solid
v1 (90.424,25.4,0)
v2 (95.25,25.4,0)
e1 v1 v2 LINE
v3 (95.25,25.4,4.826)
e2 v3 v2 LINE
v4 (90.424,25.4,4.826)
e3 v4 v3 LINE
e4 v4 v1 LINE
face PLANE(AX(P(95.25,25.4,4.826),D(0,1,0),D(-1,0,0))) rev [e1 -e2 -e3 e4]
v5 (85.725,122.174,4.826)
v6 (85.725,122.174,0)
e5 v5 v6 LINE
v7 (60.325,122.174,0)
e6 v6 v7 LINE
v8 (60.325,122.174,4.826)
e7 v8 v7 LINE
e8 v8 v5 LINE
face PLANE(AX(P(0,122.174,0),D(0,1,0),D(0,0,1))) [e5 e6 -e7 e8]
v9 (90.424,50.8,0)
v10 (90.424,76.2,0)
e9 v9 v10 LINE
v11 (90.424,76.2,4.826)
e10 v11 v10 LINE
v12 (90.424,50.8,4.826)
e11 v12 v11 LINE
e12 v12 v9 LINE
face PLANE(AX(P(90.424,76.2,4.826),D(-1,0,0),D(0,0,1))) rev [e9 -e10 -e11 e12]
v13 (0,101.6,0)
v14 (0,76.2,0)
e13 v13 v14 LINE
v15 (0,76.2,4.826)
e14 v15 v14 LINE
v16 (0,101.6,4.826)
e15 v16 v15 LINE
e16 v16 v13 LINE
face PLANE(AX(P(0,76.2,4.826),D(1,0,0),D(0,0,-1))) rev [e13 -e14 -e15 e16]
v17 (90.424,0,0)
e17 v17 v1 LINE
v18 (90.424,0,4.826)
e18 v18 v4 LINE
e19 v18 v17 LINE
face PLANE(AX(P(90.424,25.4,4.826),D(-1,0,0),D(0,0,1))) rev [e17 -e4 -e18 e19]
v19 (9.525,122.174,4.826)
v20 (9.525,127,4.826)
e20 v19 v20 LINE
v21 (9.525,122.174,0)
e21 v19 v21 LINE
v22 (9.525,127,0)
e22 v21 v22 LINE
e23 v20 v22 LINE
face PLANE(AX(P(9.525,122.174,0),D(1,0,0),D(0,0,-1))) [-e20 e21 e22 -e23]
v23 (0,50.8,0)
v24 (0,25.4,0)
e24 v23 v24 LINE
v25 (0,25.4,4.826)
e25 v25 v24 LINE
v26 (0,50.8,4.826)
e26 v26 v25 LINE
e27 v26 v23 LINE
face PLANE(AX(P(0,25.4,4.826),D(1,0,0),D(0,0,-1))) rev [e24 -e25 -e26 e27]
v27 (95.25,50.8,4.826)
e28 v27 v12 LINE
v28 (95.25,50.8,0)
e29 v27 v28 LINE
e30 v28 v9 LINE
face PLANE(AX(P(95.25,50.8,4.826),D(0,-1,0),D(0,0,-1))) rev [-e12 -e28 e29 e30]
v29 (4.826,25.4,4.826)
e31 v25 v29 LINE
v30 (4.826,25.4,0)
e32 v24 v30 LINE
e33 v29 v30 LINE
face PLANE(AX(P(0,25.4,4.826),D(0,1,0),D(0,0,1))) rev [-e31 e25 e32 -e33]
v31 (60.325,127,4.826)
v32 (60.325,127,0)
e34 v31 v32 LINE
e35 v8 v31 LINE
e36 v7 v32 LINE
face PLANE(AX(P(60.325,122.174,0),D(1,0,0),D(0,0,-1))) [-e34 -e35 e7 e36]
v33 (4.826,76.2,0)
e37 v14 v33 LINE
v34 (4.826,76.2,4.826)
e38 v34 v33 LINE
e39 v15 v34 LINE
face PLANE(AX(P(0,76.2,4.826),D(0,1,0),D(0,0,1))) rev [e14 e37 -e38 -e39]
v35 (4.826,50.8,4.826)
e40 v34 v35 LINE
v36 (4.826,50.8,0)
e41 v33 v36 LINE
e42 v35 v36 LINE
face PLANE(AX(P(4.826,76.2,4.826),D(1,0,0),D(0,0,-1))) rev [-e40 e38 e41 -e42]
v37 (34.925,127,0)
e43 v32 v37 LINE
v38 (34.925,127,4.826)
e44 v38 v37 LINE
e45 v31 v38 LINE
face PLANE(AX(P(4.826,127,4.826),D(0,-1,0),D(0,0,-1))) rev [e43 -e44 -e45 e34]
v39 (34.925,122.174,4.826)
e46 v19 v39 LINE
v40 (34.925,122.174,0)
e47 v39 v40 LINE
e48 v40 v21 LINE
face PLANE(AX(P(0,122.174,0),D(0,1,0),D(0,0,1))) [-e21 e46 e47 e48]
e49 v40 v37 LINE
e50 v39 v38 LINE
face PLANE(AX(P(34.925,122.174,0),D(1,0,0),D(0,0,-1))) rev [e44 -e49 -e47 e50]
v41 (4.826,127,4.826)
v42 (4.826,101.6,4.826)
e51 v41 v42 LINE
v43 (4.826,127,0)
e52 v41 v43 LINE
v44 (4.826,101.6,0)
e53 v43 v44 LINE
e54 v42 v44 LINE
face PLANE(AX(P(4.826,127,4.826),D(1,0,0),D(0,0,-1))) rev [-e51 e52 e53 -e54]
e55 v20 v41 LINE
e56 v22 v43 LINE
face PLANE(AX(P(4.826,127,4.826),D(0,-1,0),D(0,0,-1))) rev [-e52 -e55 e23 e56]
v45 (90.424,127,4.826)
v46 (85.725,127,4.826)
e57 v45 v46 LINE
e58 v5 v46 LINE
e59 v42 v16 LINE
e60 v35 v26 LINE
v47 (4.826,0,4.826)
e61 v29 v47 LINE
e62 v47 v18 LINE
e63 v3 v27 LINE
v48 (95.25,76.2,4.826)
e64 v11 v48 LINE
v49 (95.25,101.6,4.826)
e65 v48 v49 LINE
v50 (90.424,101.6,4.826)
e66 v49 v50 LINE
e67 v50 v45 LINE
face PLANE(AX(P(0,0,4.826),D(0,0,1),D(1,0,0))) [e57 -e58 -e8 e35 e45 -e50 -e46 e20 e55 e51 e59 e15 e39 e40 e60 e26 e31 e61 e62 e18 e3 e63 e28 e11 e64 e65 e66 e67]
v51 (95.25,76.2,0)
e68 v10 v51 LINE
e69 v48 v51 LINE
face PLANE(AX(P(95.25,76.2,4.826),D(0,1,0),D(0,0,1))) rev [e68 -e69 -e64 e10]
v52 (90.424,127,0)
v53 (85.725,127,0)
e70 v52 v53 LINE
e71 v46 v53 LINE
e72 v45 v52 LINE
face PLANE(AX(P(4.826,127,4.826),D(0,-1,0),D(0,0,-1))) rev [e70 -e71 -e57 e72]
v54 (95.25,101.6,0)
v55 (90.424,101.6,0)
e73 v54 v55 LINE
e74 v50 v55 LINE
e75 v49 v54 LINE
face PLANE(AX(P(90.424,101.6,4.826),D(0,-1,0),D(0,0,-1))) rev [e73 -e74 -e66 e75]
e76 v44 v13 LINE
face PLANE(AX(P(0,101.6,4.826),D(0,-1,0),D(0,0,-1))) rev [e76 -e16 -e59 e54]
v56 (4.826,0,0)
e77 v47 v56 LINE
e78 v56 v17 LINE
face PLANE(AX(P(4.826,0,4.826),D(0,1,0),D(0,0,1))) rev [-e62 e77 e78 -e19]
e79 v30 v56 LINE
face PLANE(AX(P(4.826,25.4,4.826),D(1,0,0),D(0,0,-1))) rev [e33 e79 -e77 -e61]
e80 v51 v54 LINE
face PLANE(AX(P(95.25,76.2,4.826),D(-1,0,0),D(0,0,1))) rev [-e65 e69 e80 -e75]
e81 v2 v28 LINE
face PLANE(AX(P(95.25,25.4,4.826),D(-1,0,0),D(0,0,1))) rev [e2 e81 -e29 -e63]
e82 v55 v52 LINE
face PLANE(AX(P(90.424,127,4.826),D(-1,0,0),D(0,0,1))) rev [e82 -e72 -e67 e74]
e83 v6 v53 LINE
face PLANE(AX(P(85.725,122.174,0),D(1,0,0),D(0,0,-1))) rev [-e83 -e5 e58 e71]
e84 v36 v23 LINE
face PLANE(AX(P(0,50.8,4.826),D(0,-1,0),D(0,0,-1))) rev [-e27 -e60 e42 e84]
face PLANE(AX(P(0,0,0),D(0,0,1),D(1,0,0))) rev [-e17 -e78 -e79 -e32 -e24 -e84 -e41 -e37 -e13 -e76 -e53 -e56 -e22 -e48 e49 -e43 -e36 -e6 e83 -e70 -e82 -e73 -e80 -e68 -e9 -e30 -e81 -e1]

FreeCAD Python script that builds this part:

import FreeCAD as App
import Part
import Sketcher

V = App.Vector
Q = App.Units.Quantity


def add_polygon(sketch, points):
    """Adds a closed chain of lines whose ends are joined by coincident constraints."""
    first, n = sketch.GeometryCount, len(points)
    for a, b in zip(points, points[1:] + points[:1]):
        sketch.addGeometry(Part.LineSegment(App.Vector(*a, 0), App.Vector(*b, 0)), False)
    for i in range(n):
        sketch.addConstraint(Sketcher.Constraint("Coincident", first + i, 2, first + (i + 1) % n, 1))

doc = App.newDocument("Part")
body = doc.addObject("PartDesign::Body", "Body")

sketch1 = body.newObject("Sketcher::SketchObject", "Sketch")
sketch1.AttachmentSupport = (doc.getObject("XY_Plane"), [""])
sketch1.MapMode = "FlatFace"
add_polygon(sketch1, [(0, 101.6), (0, 76.2), (4.8, 76.2), (4.8, 50.8), (0, 50.8), (0, 25.4), (4.8, 25.4), (4.8, 0), (90.4, 0), (90.4, 25.4), (95.2, 25.4), (95.2, 50.8), (90.4, 50.8), (90.4, 76.2), (95.2, 76.2), (95.2, 101.6), (90.4, 101.6), (90.4, 127), (4.8, 127), (4.8, 101.6)])
sketch1.addConstraint([
    Sketcher.Constraint("Vertical", 0),
    Sketcher.Constraint("Horizontal", 1),
    Sketcher.Constraint("Vertical", 2),
    Sketcher.Constraint("Horizontal", 3),
    Sketcher.Constraint("Vertical", 4),
    Sketcher.Constraint("Horizontal", 5),
    Sketcher.Constraint("Vertical", 6),
    Sketcher.Constraint("Horizontal", 7),
    Sketcher.Constraint("Vertical", 8),
    Sketcher.Constraint("Horizontal", 9),
    Sketcher.Constraint("Vertical", 10),
    Sketcher.Constraint("Horizontal", 11),
    Sketcher.Constraint("Vertical", 12),
    Sketcher.Constraint("Horizontal", 13),
    Sketcher.Constraint("Vertical", 14),
    Sketcher.Constraint("Horizontal", 15),
    Sketcher.Constraint("Vertical", 16),
    Sketcher.Constraint("Horizontal", 17),
    Sketcher.Constraint("Vertical", 18),
    Sketcher.Constraint("Horizontal", 19),
    Sketcher.Constraint("PointOnObject", 0, 2, -2),
    Sketcher.Constraint("PointOnObject", 3, 2, -2),
    Sketcher.Constraint("PointOnObject", 6, 2, -1),
    Sketcher.Constraint("Horizontal", 5, 2, 8, 2),
    Sketcher.Constraint("Horizontal", 3, 2, 10, 2),
    Sketcher.Constraint("Horizontal", 1, 2, 12, 2),
    Sketcher.Constraint("Horizontal", 15, 2, 18, 2),
    Sketcher.Constraint("Vertical", 2, 2, 5, 2),
    Sketcher.Constraint("Vertical", 8, 2, 11, 2),
    Sketcher.Constraint("Vertical", 10, 2, 13, 2),
    Sketcher.Constraint("Vertical", 12, 2, 15, 2),
    Sketcher.Constraint("Vertical", 6, 2, 17, 2),
    Sketcher.Constraint("Equal", 5, 9),
    Sketcher.Constraint("Equal", 0, 2),
    Sketcher.Constraint("Equal", 2, 4),
    Sketcher.Constraint("Equal", 4, 6),
    Sketcher.Constraint("Equal", 14, 16),
    Sketcher.Constraint("DistanceY", 0, 2, 0, 1, Q("1 in")),
    Sketcher.Constraint("DistanceX", 1, 1, 1, 2, Q("0.19 in")),
    Sketcher.Constraint("DistanceX", 7, 1, 7, 2, Q("3.37 in")),
])
pad1 = body.newObject("PartDesign::Pad", "Pad")
pad1.Profile = sketch1
pad1.Length = Q("0.19 in")

sketch2 = body.newObject("Sketcher::SketchObject", "Sketch001")
sketch2.AttachmentSupport = (doc.getObject("XZ_Plane"), [""])
sketch2.MapMode = "FlatFace"
sketch2.AttachmentOffset = App.Placement(V(0, 0, -5 * 25.4), App.Rotation())
add_polygon(sketch2, [(60.3, 0), (60.3, 4.8), (85.7, 4.8), (85.7, 0)])
add_polygon(sketch2, [(9.5, 0), (9.5, 4.8), (34.9, 4.8), (34.9, 0)])
sketch2.addConstraint([
    Sketcher.Constraint("Vertical", 0),
    Sketcher.Constraint("Horizontal", 1),
    Sketcher.Constraint("Vertical", 2),
    Sketcher.Constraint("Horizontal", 3),
    Sketcher.Constraint("Vertical", 4),
    Sketcher.Constraint("Horizontal", 5),
    Sketcher.Constraint("Vertical", 6),
    Sketcher.Constraint("Horizontal", 7),
    Sketcher.Constraint("PointOnObject", 2, 2, -1),
    Sketcher.Constraint("PointOnObject", 6, 2, -1),
    Sketcher.Constraint("Horizontal", 1, 2, 4, 2),
    Sketcher.Constraint("Equal", 3, 5),
    Sketcher.Constraint("DistanceX", 1, 1, 1, 2, Q("1 in")),
    Sketcher.Constraint("DistanceX", 4, 2, 0, 2, Q("2 in")),
    Sketcher.Constraint("DistanceY", 0, 1, 0, 2, Q("0.19 in")),
    Sketcher.Constraint("DistanceX", -1, 1, 0, 2, Q("2.375 in")),
])
pocket1 = body.newObject("PartDesign::Pocket", "Pocket")
pocket1.Profile = sketch2
pocket1.Length = Q("0.19 in")
pocket1.Reversed = True

doc.recompute()
